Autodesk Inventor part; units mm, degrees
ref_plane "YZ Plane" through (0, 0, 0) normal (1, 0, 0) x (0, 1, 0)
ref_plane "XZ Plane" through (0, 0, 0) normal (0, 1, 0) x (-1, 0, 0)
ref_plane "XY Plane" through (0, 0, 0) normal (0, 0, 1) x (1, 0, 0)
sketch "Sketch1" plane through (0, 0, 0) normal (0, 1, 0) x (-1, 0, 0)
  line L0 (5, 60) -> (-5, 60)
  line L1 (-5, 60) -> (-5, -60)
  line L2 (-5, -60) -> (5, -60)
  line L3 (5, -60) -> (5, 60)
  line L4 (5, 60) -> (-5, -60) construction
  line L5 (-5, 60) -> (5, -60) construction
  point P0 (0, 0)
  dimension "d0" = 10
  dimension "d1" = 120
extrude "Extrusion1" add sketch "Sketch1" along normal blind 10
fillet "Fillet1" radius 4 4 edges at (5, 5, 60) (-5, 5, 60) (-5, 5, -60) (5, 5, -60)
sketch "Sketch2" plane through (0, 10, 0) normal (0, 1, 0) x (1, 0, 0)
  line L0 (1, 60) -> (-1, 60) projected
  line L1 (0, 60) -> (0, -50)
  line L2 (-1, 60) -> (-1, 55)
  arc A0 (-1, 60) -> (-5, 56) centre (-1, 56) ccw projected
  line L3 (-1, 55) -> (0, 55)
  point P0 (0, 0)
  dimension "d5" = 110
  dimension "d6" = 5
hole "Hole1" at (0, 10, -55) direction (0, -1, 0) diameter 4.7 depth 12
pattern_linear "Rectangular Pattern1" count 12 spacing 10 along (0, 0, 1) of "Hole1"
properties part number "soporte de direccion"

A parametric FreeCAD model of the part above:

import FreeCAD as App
import Part
import Sketcher
from FreeCAD import Vector


def edges_at(feature, points):
    """Names of the edges that pass closest to the given points."""
    edges = feature.Shape.Edges
    near = lambda p: min(range(len(edges)), key=lambda i: edges[i].distToShape(Part.Vertex(*p))[0])
    return sorted({f"Edge{near(p) + 1}" for p in points})


def add_polygon(sketch, points):
    """Adds a closed chain of lines whose ends are joined by coincident constraints."""
    first, n = sketch.GeometryCount, len(points)
    for a, b in zip(points, points[1:] + points[:1]):
        sketch.addGeometry(Part.LineSegment(App.Vector(*a, 0), App.Vector(*b, 0)), False)
    for i in range(n):
        sketch.addConstraint(Sketcher.Constraint("Coincident", first + i, 2, first + (i + 1) % n, 1))

doc = App.newDocument("Part")
params = doc.addObject("Spreadsheet::Sheet", "Params")
for row, (alias, value) in enumerate([
    ("sketch1_width", "10 mm"),
    ("sketch1_height", "120 mm"),
    ("pad1_length", "10 mm"),
    ("fillet_radius", "4 mm"),
    ("sketch2_diameter", "4.7 mm"),
    ("hole_diameter", "4.7 mm"),
    ("hole_depth", "12 mm"),
    ("linearpattern_pitch", "10 mm"),
], start=1):
    params.set(f"A{row}", alias)
    params.set(f"B{row}", "=" + value)
    params.setAlias(f"B{row}", alias)

body = doc.addObject("PartDesign::Body", "Body")

# Sketch on XZ plane
sketch1 = doc.addObject("Sketcher::SketchObject", "Sketch")
body.addObject(sketch1)
sketch1.AttachmentSupport = (doc.XZ_Plane, [""])
sketch1.MapMode = "FlatFace"
add_polygon(sketch1, [(-5, -60), (-5, 60), (5, 60), (5, -60)])  # lines 0-3
sketch1.addConstraint([
    Sketcher.Constraint("Vertical", 0),
    Sketcher.Constraint("Horizontal", 1),
    Sketcher.Constraint("Vertical", 2),
    Sketcher.Constraint("Horizontal", 3),
    Sketcher.Constraint("Symmetric", 0, 2, 2, 2, -1, 1),
    Sketcher.Constraint("DistanceX", 1, 1, 1, 2, 10.0),
    Sketcher.Constraint("DistanceY", 0, 1, 0, 2, 120.0),
])
sketch1.setExpression("Constraints[9]", "Params.sketch1_width")
sketch1.setExpression("Constraints[10]", "Params.sketch1_height")
pad1 = doc.addObject("PartDesign::Pad", "Pad")
body.addObject(pad1)
pad1.Profile = sketch1
pad1.setExpression("Length", "Params.pad1_length")
pad1.Reversed = True
doc.recompute()

fillet = doc.addObject("PartDesign::Fillet", "Fillet")
body.addObject(fillet)
fillet.Base = (pad1, edges_at(pad1, [
    (5, 5, 60),
    (-5, 5, 60),
    (-5, 5, -60),
    (5, 5, -60),
]))
fillet.setExpression("Radius", "Params.fillet_radius")

# Sketch on XZ plane
sketch2 = doc.addObject("Sketcher::SketchObject", "Sketch001")
body.addObject(sketch2)
sketch2.AttachmentSupport = (doc.XZ_Plane, [""])
sketch2.MapMode = "FlatFace"
sketch2.AttachmentOffset = App.Placement(Vector(0, 0, -10), App.Rotation())
sketch2.addGeometry(Part.Circle(Vector(0, -55, 0), Vector(0, 0, 1), 2.4), False)
sketch2.addConstraint([
    Sketcher.Constraint("PointOnObject", 0, 3, -2),
    Sketcher.Constraint("Diameter", 0, 4.7),
    Sketcher.Constraint("DistanceY", 0, 3, -1, 1, 55.0),
])
sketch2.setExpression("Constraints[1]", "Params.sketch2_diameter")
doc.recompute()
hole = doc.addObject("PartDesign::Hole", "Hole")
body.addObject(hole)
hole.Profile = sketch2
hole.ThreadType = "None"
hole.setExpression("Diameter", "Params.hole_diameter")
hole.DepthType = "Dimension"
hole.setExpression("Depth", "Params.hole_depth")
hole.DrillPoint = "Flat"
hole.Reversed = True
doc.recompute()

linearpattern = doc.addObject("PartDesign::LinearPattern", "LinearPattern")
body.addObject(linearpattern)
linearpattern.Originals = [hole]
linearpattern.Direction = (doc.Z_Axis, [""])
linearpattern.Mode = "offset"
linearpattern.setExpression("Offset", "Params.linearpattern_pitch")
linearpattern.Occurrences = 12
body.Tip = linearpattern

doc.recompute()
